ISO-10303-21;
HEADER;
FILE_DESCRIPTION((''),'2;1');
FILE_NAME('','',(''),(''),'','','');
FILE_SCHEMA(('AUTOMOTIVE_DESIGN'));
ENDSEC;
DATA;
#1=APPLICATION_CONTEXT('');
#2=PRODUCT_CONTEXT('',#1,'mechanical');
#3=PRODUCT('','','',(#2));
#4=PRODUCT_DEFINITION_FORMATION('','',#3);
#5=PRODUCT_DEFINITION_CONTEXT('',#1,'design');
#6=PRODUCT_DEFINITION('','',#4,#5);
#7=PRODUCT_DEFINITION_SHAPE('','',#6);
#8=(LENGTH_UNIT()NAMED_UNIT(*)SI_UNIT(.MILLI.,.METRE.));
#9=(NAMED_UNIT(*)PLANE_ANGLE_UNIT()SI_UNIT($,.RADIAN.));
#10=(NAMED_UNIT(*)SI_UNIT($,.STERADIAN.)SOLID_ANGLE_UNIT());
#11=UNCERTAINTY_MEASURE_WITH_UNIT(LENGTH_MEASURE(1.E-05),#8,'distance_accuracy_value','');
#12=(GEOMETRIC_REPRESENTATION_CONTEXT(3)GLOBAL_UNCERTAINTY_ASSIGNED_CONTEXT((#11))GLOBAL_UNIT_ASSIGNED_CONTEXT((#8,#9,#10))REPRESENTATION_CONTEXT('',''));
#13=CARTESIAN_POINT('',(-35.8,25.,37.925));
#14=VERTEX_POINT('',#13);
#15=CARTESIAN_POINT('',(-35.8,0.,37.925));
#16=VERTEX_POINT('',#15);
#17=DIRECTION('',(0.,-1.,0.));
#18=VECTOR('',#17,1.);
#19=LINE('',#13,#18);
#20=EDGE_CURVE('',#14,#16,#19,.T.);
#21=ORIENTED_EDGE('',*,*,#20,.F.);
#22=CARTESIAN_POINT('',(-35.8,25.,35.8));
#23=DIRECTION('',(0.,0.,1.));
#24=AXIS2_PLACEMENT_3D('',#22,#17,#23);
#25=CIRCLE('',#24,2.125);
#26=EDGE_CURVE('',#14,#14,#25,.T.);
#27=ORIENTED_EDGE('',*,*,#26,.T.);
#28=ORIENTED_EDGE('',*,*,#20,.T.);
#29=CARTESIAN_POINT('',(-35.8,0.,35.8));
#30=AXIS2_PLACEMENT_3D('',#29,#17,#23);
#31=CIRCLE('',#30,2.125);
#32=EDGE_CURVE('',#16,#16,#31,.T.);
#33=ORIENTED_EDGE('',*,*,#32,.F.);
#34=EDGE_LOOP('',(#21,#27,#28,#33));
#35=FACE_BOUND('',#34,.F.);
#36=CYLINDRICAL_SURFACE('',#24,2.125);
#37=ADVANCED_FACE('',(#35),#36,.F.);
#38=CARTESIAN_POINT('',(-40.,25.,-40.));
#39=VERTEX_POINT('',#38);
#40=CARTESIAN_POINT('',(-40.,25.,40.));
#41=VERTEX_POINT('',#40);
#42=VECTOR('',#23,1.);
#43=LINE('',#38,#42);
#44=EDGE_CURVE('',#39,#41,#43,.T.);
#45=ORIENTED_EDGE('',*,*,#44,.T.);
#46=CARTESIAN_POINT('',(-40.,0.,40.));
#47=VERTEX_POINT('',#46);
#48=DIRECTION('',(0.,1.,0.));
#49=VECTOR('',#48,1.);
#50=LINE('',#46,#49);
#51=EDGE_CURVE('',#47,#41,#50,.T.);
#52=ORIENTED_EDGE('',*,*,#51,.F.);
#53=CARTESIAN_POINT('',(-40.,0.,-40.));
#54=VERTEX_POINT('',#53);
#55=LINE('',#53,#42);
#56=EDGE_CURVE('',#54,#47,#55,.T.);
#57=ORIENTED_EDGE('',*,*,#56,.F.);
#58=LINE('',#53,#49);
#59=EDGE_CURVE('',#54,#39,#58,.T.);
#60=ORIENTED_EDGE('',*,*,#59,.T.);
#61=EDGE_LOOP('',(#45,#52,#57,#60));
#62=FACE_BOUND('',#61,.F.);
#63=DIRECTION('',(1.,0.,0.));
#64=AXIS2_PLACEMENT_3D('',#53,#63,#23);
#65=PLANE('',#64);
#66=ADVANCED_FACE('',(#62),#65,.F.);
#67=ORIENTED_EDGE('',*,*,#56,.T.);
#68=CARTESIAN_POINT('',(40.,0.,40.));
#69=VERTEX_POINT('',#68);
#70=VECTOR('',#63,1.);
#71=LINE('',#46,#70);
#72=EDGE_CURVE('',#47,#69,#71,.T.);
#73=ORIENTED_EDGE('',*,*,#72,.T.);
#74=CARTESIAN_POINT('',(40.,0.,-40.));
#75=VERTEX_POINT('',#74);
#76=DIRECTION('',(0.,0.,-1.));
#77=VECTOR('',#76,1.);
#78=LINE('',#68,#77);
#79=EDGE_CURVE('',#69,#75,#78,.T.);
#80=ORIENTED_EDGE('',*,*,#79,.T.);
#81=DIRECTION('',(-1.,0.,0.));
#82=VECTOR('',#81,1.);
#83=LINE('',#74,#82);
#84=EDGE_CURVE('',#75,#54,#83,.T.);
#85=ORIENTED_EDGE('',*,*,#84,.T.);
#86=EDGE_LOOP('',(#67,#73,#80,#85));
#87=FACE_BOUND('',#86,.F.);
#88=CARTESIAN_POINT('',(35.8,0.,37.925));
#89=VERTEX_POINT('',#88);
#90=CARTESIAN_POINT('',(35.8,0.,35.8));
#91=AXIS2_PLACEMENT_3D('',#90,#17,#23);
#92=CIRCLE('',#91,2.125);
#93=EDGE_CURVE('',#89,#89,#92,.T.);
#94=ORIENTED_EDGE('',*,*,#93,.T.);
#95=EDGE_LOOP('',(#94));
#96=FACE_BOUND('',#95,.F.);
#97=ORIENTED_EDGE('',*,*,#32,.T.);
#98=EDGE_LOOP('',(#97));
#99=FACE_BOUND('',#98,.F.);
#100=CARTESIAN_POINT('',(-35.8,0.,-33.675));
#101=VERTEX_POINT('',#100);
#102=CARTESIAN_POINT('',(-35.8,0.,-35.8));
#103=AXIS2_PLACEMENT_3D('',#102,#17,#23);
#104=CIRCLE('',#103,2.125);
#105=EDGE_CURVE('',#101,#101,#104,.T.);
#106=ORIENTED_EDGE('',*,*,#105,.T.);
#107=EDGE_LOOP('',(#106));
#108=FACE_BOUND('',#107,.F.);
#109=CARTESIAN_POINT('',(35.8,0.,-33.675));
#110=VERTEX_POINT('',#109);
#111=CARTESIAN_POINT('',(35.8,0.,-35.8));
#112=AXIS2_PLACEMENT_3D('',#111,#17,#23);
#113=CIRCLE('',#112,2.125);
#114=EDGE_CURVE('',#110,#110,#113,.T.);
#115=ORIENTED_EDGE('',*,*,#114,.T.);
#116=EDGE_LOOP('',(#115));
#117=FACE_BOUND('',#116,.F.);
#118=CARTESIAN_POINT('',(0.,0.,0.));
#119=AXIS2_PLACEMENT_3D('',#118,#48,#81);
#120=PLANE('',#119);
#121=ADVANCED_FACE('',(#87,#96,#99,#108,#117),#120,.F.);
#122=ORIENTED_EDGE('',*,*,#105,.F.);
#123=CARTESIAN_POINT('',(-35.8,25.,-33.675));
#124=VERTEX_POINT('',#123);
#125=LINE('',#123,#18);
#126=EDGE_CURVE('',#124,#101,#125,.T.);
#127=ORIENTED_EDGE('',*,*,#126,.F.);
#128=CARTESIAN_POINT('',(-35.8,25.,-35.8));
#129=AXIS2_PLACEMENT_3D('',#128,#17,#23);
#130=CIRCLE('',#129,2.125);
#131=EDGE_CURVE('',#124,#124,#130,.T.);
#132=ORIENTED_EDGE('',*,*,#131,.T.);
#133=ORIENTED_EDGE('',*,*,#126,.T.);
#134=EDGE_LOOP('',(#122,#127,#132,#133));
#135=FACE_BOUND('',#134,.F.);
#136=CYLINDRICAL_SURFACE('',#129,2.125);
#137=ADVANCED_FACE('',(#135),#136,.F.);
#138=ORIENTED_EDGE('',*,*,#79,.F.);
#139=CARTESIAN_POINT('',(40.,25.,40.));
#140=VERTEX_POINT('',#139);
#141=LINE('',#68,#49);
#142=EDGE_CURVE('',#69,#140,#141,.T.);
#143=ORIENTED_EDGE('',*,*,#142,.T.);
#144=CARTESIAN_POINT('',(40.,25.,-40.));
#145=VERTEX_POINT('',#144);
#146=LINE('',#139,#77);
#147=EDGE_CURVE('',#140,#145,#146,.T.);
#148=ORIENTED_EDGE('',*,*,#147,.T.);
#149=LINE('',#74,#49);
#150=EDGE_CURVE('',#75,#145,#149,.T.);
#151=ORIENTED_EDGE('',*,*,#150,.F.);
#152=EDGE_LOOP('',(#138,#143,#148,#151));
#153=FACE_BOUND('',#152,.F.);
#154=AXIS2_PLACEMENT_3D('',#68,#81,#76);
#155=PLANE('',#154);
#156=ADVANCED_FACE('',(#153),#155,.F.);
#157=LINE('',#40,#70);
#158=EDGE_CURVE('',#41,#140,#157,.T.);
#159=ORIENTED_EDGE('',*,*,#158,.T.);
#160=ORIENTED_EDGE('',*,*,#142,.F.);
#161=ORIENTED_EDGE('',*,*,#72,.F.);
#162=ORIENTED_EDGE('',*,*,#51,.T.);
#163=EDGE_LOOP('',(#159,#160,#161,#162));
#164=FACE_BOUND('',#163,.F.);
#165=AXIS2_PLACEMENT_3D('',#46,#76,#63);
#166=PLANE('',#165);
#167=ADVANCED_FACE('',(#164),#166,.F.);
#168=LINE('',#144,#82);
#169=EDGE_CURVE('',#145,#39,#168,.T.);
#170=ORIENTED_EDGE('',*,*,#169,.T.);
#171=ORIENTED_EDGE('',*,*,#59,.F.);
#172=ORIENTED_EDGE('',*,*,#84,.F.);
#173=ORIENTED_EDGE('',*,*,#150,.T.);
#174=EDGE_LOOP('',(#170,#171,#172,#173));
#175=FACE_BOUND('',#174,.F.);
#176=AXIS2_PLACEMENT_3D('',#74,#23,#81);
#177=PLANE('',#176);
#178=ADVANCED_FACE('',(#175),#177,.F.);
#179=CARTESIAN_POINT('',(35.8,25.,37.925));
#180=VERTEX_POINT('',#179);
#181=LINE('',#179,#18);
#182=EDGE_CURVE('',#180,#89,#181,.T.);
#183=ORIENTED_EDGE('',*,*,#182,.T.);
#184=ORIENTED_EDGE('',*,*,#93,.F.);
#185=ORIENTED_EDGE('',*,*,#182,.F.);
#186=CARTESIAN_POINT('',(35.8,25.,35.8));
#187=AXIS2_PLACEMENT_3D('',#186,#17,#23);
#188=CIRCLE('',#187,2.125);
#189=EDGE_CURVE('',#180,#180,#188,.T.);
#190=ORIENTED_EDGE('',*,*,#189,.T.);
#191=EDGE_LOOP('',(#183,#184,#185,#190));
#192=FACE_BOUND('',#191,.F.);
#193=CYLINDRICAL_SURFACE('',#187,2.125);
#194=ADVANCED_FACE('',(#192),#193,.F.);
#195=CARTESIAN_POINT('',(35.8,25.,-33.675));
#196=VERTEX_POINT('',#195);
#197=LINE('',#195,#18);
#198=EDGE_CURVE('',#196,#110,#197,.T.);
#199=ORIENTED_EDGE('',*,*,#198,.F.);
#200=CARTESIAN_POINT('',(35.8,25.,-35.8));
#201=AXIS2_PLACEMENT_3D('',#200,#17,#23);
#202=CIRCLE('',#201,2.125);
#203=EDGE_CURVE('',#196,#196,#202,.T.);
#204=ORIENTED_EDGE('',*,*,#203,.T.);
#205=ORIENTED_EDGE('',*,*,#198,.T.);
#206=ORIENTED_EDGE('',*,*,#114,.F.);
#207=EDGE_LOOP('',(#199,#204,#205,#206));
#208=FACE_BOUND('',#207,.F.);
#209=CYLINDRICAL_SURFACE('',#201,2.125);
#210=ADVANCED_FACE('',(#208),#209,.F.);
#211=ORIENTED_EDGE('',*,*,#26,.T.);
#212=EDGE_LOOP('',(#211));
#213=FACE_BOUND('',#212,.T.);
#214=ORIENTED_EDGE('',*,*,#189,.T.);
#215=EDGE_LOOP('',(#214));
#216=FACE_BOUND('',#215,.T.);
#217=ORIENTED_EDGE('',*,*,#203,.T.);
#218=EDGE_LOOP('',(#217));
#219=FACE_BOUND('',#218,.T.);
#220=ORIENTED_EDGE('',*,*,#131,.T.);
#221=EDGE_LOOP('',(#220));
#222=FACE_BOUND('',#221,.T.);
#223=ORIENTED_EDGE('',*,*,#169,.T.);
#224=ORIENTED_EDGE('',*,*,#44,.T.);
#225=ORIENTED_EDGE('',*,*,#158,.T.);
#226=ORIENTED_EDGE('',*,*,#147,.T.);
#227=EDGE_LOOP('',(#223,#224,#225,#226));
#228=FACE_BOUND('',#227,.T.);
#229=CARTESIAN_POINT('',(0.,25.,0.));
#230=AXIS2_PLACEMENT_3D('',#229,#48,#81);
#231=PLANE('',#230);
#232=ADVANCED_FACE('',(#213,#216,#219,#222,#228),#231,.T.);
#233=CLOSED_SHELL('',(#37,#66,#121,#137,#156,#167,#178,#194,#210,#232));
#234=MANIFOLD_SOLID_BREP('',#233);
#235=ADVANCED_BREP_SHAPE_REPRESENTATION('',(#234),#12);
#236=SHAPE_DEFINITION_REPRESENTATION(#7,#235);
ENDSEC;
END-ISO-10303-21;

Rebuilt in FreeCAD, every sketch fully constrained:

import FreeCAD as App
import Part
import Sketcher

V = App.Vector
Q = App.Units.Quantity


def add_polygon(sketch, points):
    """Adds a closed chain of lines whose ends are joined by coincident constraints."""
    first, n = sketch.GeometryCount, len(points)
    for a, b in zip(points, points[1:] + points[:1]):
        sketch.addGeometry(Part.LineSegment(App.Vector(*a, 0), App.Vector(*b, 0)), False)
    for i in range(n):
        sketch.addConstraint(Sketcher.Constraint("Coincident", first + i, 2, first + (i + 1) % n, 1))

doc = App.newDocument("Part")
params = doc.addObject("Spreadsheet::Sheet", "Params")
for row, (alias, value) in enumerate([
    ("sketch1_width", "80 mm"),
    ("pad1_length", "25 mm"),
    ("sketch2_diameter", "4.25 mm"),
    ("hole_diameter", "4.25 mm"),
    ("hole_depth", "30 mm"),
], start=1):
    params.set(f"A{row}", alias)
    params.set(f"B{row}", "=" + value)
    params.setAlias(f"B{row}", alias)

body = doc.addObject("PartDesign::Body", "Body")

# Sketch on XZ plane
sketch1 = doc.addObject("Sketcher::SketchObject", "Sketch")
body.addObject(sketch1)
sketch1.AttachmentSupport = (doc.XZ_Plane, [""])
sketch1.MapMode = "FlatFace"
add_polygon(sketch1, [(40, 40), (40, -40), (-40, -40), (-40, 40)])  # lines 0-3
sketch1.addConstraint([
    Sketcher.Constraint("Vertical", 0),
    Sketcher.Constraint("Horizontal", 1),
    Sketcher.Constraint("Vertical", 2),
    Sketcher.Constraint("Horizontal", 3),
    Sketcher.Constraint("Symmetric", 0, 2, 2, 2, -1, 1),
    Sketcher.Constraint("Equal", 3, 0),
    Sketcher.Constraint("DistanceX", 1, 2, 1, 1, Q("80 mm")),
])
sketch1.setExpression("Constraints[10]", "Params.sketch1_width")
pad1 = doc.addObject("PartDesign::Pad", "Pad")
body.addObject(pad1)
pad1.Profile = sketch1
pad1.setExpression("Length", "Params.pad1_length")
pad1.Reversed = True

# Sketch on XZ plane
sketch2 = doc.addObject("Sketcher::SketchObject", "Sketch001")
body.addObject(sketch2)
sketch2.AttachmentSupport = (doc.XZ_Plane, [""])
sketch2.MapMode = "FlatFace"
sketch2.AttachmentOffset = App.Placement(V(0, 0, -25), App.Rotation())
sketch2.addGeometry([
    Part.Circle(V(35.8, 35.8, 0), V(0, 0, 1), 2.1),
    Part.Circle(V(35.8, -35.8, 0), V(0, 0, 1), 2.1),
    Part.Circle(V(-35.8, -35.8, 0), V(0, 0, 1), 2.1),
    Part.Circle(V(-35.8, 35.8, 0), V(0, 0, 1), 2.1),
], False)
sketch2.addConstraint([
    Sketcher.Constraint("Equal", 0, 1),
    Sketcher.Constraint("Equal", 1, 2),
    Sketcher.Constraint("Equal", 2, 3),
    Sketcher.Constraint("Symmetric", 0, 3, 2, 3, -1, 1),
    Sketcher.Constraint("Symmetric", 1, 3, 3, 3, -1, 1),
    Sketcher.Constraint("Symmetric", 1, 3, 2, 3, -2),
    Sketcher.Constraint("Diameter", 0, Q("4.25 mm")),
    Sketcher.Constraint("DistanceX", -1, 1, 0, 3, Q("35.8 mm")),
    Sketcher.Constraint("DistanceY", -1, 1, 0, 3, Q("35.8 mm")),
])
sketch2.setExpression("Constraints[6]", "Params.sketch2_diameter")
doc.recompute()
hole = doc.addObject("PartDesign::Hole", "Hole")
body.addObject(hole)
hole.Profile = sketch2
hole.ThreadType = "None"
hole.setExpression("Diameter", "Params.hole_diameter")
hole.DepthType = "Dimension"
hole.setExpression("Depth", "Params.hole_depth")
hole.DrillPoint = "Flat"
hole.Reversed = True

doc.recompute()
